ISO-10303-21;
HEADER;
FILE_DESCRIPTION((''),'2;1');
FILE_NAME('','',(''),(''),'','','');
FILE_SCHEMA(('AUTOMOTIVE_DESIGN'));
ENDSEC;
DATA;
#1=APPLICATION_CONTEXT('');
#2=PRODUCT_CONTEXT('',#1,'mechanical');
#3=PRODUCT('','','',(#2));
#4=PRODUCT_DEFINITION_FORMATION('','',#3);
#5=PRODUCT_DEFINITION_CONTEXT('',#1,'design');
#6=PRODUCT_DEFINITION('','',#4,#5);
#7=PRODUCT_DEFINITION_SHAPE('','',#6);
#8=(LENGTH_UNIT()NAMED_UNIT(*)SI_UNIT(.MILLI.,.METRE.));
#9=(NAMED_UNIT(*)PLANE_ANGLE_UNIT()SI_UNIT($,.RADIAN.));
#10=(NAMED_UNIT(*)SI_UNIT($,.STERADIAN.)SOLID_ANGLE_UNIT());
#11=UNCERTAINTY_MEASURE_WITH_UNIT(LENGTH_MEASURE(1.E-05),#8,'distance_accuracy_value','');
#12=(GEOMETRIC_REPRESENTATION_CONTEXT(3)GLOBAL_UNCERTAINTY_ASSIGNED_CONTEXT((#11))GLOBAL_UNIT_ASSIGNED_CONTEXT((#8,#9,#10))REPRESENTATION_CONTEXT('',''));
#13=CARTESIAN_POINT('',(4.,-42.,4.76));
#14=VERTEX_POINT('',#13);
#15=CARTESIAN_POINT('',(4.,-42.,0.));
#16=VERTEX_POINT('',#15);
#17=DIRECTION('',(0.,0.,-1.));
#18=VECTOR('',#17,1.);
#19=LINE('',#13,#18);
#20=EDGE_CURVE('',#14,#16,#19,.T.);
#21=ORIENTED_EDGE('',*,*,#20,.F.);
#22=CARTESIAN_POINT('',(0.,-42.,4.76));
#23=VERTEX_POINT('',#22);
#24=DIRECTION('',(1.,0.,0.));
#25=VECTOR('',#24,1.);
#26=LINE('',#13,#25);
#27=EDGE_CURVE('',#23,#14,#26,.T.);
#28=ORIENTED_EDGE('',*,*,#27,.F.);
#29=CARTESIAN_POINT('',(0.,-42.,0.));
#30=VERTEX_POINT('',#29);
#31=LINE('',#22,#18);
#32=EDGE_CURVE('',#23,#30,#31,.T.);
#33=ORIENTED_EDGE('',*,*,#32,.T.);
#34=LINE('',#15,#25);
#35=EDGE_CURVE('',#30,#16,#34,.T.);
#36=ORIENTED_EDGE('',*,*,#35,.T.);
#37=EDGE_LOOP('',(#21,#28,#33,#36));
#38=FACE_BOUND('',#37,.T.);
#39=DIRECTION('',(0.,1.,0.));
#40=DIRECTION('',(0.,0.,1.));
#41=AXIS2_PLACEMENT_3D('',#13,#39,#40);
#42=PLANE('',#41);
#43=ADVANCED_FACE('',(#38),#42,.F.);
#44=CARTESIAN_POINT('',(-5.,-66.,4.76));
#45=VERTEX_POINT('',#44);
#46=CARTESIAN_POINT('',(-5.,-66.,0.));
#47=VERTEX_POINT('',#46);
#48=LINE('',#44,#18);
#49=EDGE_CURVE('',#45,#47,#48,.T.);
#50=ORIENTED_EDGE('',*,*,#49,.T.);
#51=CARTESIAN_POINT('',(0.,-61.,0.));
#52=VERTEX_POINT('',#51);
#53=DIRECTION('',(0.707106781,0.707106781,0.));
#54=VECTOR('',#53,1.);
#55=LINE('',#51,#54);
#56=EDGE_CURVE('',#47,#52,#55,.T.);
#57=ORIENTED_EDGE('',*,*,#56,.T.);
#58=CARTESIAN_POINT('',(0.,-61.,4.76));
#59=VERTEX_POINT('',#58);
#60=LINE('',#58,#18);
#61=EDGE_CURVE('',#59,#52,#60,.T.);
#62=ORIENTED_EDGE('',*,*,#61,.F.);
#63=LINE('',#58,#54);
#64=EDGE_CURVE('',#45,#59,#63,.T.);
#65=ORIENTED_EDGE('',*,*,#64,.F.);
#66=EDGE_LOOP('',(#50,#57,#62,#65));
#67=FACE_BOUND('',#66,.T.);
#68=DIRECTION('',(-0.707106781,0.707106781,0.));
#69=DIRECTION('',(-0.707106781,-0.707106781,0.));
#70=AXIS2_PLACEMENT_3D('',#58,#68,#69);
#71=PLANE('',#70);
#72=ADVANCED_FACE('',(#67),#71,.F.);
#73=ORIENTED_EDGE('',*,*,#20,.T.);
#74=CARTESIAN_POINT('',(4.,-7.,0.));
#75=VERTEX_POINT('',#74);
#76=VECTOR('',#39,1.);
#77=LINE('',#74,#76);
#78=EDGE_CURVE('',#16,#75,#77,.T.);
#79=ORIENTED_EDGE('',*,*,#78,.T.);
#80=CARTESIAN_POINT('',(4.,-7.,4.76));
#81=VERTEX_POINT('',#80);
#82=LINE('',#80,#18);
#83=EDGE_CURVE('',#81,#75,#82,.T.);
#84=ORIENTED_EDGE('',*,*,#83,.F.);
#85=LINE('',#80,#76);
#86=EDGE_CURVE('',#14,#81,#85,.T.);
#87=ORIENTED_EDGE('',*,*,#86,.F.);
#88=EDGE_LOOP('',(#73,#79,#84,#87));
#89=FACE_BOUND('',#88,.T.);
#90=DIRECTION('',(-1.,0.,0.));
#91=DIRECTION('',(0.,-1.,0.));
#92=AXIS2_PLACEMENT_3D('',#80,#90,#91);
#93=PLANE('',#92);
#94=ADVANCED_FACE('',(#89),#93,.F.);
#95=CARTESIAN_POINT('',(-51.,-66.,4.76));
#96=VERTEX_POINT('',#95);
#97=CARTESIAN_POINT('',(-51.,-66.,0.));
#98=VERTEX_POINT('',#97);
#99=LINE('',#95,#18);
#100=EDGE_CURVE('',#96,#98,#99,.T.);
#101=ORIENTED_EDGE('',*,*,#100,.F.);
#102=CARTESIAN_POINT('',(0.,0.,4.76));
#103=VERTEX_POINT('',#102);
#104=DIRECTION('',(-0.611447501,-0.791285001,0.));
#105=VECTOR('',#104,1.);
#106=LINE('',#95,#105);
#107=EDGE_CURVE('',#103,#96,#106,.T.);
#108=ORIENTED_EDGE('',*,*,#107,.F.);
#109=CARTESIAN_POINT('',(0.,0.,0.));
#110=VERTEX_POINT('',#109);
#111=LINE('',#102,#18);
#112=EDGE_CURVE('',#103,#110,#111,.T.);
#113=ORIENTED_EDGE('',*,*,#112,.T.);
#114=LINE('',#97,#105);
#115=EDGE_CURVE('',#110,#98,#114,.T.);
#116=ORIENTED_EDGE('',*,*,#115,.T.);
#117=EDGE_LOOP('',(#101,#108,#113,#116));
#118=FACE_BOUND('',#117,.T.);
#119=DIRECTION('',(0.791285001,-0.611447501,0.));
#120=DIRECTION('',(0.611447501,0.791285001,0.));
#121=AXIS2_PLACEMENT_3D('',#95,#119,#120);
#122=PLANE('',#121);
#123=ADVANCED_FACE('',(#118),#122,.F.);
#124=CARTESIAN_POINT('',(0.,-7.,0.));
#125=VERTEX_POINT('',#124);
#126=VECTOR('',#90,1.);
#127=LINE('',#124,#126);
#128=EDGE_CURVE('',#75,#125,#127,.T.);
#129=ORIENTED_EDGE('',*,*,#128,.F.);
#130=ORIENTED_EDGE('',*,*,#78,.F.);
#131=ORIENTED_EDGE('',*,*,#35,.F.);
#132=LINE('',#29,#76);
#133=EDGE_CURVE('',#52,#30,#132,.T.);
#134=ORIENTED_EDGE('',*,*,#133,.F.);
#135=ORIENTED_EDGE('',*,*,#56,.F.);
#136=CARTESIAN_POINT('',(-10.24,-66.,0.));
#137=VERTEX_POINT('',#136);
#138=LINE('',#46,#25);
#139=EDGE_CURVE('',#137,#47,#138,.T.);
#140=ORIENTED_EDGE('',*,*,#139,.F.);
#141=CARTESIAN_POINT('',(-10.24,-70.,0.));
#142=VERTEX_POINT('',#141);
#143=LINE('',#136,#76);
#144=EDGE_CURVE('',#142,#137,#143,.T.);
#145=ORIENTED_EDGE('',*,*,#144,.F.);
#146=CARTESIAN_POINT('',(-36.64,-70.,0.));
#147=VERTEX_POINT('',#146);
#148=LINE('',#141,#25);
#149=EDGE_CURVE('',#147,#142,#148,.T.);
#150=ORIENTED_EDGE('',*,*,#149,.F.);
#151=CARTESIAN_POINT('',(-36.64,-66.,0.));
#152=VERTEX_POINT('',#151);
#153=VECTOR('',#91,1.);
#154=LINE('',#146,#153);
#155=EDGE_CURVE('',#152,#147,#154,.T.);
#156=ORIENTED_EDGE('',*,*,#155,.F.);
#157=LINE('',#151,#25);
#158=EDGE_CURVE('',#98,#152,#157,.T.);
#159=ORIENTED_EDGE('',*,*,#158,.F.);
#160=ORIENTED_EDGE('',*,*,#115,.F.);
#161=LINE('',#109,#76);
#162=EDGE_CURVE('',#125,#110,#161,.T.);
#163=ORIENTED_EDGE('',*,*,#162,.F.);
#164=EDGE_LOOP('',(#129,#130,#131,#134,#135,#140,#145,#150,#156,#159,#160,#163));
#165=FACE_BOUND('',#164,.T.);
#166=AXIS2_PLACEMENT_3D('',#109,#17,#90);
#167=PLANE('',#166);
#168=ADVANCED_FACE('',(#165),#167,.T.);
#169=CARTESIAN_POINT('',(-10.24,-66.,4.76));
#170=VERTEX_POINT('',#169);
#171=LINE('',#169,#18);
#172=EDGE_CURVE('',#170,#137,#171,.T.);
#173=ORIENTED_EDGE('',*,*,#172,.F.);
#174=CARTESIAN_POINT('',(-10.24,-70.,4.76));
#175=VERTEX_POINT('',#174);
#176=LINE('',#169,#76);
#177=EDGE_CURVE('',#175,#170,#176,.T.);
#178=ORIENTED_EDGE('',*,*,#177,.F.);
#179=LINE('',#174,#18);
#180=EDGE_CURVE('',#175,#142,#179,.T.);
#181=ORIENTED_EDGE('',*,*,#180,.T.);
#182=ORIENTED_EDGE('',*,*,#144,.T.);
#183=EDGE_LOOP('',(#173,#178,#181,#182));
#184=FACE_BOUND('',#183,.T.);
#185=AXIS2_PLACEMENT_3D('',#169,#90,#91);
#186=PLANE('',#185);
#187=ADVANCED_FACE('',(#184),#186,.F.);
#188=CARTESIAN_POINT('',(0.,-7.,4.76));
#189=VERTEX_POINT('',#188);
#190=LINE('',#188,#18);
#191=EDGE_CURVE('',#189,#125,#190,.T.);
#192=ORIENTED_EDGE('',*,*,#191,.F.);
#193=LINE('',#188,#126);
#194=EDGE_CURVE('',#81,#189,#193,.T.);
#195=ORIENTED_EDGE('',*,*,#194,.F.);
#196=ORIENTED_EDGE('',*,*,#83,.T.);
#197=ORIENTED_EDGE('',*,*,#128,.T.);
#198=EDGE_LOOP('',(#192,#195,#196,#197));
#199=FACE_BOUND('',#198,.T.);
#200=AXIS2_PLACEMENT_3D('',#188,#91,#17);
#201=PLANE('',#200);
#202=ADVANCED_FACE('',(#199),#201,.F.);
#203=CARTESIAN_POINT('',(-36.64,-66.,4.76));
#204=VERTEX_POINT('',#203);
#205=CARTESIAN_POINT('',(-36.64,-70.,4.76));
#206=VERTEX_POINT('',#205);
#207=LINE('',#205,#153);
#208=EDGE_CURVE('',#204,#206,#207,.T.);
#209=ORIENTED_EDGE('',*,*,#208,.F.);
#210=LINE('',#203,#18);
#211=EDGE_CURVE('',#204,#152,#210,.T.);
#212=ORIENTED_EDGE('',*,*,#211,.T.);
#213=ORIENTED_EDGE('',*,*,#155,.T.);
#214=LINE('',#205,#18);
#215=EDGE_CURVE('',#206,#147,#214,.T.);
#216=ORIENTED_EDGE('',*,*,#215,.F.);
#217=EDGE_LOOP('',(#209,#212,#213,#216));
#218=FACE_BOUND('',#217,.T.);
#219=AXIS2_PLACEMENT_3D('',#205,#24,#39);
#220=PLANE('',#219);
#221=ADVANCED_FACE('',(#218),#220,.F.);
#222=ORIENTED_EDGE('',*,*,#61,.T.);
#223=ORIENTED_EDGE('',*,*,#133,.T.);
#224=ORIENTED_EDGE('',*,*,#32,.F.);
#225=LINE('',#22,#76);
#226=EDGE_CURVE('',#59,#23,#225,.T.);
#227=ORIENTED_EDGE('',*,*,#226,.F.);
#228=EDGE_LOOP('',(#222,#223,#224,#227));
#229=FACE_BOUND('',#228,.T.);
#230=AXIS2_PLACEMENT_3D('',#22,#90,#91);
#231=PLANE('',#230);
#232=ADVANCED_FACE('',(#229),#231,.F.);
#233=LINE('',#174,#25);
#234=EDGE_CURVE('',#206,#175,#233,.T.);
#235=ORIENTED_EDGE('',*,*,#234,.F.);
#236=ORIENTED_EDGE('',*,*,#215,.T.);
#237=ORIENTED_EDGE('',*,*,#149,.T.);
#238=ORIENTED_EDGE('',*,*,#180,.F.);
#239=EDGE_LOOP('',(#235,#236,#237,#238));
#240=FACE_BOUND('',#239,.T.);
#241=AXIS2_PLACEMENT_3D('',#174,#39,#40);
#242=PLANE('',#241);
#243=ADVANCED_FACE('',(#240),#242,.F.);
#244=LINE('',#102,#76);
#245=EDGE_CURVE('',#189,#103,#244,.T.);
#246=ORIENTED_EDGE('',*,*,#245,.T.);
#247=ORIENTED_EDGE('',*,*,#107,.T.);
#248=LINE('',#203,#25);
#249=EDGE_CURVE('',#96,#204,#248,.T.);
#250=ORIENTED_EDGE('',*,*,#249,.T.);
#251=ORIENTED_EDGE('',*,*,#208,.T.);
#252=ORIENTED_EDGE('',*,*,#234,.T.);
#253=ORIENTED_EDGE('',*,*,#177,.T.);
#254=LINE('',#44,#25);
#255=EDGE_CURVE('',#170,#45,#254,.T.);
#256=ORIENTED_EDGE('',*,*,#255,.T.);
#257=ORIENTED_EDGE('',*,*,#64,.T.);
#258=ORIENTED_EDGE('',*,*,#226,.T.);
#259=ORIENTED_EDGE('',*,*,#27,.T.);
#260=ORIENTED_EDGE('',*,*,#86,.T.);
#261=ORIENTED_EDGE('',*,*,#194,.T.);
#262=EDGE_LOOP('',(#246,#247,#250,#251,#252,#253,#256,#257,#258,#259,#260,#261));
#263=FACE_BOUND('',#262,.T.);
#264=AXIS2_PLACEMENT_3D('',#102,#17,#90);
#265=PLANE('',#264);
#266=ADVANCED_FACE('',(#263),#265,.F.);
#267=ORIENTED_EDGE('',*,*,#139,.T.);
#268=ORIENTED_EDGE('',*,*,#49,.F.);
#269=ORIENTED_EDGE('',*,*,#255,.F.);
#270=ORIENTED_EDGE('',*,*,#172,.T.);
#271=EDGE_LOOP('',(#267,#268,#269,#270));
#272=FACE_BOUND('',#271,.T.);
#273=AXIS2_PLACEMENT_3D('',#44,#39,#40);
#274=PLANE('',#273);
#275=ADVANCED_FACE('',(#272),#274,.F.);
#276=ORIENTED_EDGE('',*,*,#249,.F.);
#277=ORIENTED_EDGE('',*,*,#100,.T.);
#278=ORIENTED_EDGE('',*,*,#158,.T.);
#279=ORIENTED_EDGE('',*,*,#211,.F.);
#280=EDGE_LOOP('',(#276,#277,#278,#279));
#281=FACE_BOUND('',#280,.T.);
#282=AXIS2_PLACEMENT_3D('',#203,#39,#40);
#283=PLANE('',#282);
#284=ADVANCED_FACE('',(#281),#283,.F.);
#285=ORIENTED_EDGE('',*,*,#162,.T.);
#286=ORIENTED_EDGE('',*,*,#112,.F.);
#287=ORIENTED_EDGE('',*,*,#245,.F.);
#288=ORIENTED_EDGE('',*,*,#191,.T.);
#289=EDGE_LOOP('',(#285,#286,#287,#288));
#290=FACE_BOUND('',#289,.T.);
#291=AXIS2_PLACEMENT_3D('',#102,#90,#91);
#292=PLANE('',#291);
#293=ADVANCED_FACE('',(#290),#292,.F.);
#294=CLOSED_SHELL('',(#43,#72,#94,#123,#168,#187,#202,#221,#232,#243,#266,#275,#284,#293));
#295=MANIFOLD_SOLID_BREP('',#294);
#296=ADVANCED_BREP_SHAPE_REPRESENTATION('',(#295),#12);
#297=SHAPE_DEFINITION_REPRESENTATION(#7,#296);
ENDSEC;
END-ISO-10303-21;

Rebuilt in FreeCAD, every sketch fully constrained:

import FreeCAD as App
import Part
import Sketcher
Q = App.Units.Quantity


def add_polygon(sketch, points):
    """Adds a closed chain of lines whose ends are joined by coincident constraints."""
    first, n = sketch.GeometryCount, len(points)
    for a, b in zip(points, points[1:] + points[:1]):
        sketch.addGeometry(Part.LineSegment(App.Vector(*a, 0), App.Vector(*b, 0)), False)
    for i in range(n):
        sketch.addConstraint(Sketcher.Constraint("Coincident", first + i, 2, first + (i + 1) % n, 1))

doc = App.newDocument("Part")
params = doc.addObject("Spreadsheet::Sheet", "Params")
for row, (alias, value) in enumerate([
    ("sketch1_width", "4 mm"),
    ("sketch1_height", "7 mm"),
    ("sketch1_height2", "19 mm"),
    ("sketch1_height3", "35 mm"),
    ("sketch1_width2", "26.4 mm"),
    ("pad1_length", "4.76 mm"),
], start=1):
    params.set(f"A{row}", alias)
    params.set(f"B{row}", "=" + value)
    params.setAlias(f"B{row}", alias)

body = doc.addObject("PartDesign::Body", "Body")

# Sketch on XY plane
sketch1 = body.newObject("Sketcher::SketchObject", "Sketch")
sketch1.AttachmentSupport = (doc.getObject("XY_Plane"), [""])
sketch1.MapMode = "FlatFace"
add_polygon(sketch1, [(0, -7), (0, 0), (-51, -66), (-36.6, -66), (-36.6, -70), (-10.2, -70), (-10.2, -66), (-5, -66), (0, -61), (0, -42), (4, -42), (4, -7)])  # lines 0-11
sketch1.addConstraint([
    Sketcher.Constraint("Vertical", 0),
    Sketcher.Constraint("Horizontal", 2),
    Sketcher.Constraint("Vertical", 3),
    Sketcher.Constraint("Horizontal", 4),
    Sketcher.Constraint("Vertical", 5),
    Sketcher.Constraint("Horizontal", 6),
    Sketcher.Constraint("Vertical", 8),
    Sketcher.Constraint("Horizontal", 9),
    Sketcher.Constraint("Vertical", 10),
    Sketcher.Constraint("Horizontal", 11),
    Sketcher.Constraint("Coincident", 0, 2, -1, 1),
    Sketcher.Constraint("PointOnObject", 7, 2, -2),
    Sketcher.Constraint("Horizontal", 2, 2, 5, 2),
    Sketcher.Constraint("Equal", 11, 3),
    Sketcher.Constraint("DistanceX", 9, 1, 9, 2, 4.0),
    Sketcher.Constraint("DistanceY", 0, 1, 0, 2, 7.0),
    Sketcher.Constraint("DistanceY", 8, 1, 8, 2, 19.0),
    Sketcher.Constraint("DistanceY", 10, 1, 10, 2, 35.0),
    Sketcher.Constraint("Angle", 7, Q("45 deg")),
    Sketcher.Constraint("DistanceX", 4, 1, 4, 2, 26.4),
    Sketcher.Constraint("DistanceX", 1, 2, -1, 1, 51.0),
    Sketcher.Constraint("DistanceY", 1, 2, -1, 1, 66.0),
    Sketcher.Constraint("DistanceX", 2, 1, 2, 2, 14.36),
])
sketch1.setExpression("Constraints[26]", "Params.sketch1_width")
sketch1.setExpression("Constraints[27]", "Params.sketch1_height")
sketch1.setExpression("Constraints[28]", "Params.sketch1_height2")
sketch1.setExpression("Constraints[29]", "Params.sketch1_height3")
sketch1.setExpression("Constraints[31]", "Params.sketch1_width2")
pad1 = body.newObject("PartDesign::Pad", "Pad")
pad1.Profile = sketch1
pad1.setExpression("Length", "Params.pad1_length")

doc.recompute()
